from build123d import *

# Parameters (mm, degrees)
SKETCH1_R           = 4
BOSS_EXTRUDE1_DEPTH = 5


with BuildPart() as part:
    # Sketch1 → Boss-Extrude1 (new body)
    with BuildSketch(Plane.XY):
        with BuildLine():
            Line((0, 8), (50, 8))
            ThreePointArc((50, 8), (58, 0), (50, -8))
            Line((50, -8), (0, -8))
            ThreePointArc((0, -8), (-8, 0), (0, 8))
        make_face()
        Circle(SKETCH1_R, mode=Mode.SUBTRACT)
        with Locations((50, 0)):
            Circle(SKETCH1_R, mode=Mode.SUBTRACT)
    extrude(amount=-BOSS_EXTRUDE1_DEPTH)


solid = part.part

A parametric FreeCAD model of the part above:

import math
import FreeCAD as App
import Part
import Sketcher

doc = App.newDocument("Part")
body = doc.addObject("PartDesign::Body", "Body")

# Sketch on XY plane
sketch1 = doc.addObject("Sketcher::SketchObject", "Sketch")
body.addObject(sketch1)
sketch1.AttachmentSupport = (doc.XY_Plane, [""])
sketch1.MapMode = "FlatFace"
sketch1.addGeometry(Part.LineSegment(App.Vector(50, 8, 0), App.Vector(0, 8, 0)), False)
sketch1.addGeometry(Part.ArcOfCircle(Part.Circle(App.Vector(0, 0, 0), App.Vector(0, 0, 1), 8), math.radians(90), math.radians(270)), False)
sketch1.addGeometry(Part.LineSegment(App.Vector(0, -8, 0), App.Vector(50, -8, 0)), False)
sketch1.addGeometry(Part.ArcOfCircle(Part.Circle(App.Vector(50, 0, 0), App.Vector(0, 0, 1), 8), math.radians(-90), math.radians(90)), False)
sketch1.addGeometry(Part.Circle(App.Vector(50, 0, 0), App.Vector(0, 0, 1), 4), False)
sketch1.addGeometry(Part.Circle(App.Vector(0, 0, 0), App.Vector(0, 0, 1), 4), False)
sketch1.addConstraint(Sketcher.Constraint("Tangent", 0, 2, 1, 1))
sketch1.addConstraint(Sketcher.Constraint("Tangent", 1, 2, 2, 1))
sketch1.addConstraint(Sketcher.Constraint("Tangent", 2, 2, 3, 1))
sketch1.addConstraint(Sketcher.Constraint("Tangent", 3, 2, 0, 1))
sketch1.addConstraint(Sketcher.Constraint("Horizontal", 0))
sketch1.addConstraint(Sketcher.Constraint("Horizontal", 2))
sketch1.addConstraint(Sketcher.Constraint("Coincident", 1, 3, -1, 1))
sketch1.addConstraint(Sketcher.Constraint("Coincident", 5, 3, -1, 1))
sketch1.addConstraint(Sketcher.Constraint("Coincident", 4, 3, 3, 3))
sketch1.addConstraint(Sketcher.Constraint("Equal", 4, 5))
sketch1.addConstraint(Sketcher.Constraint("Diameter", 4, 8.0))
sketch1.addConstraint(Sketcher.Constraint("Radius", 1, 8.0))
sketch1.addConstraint(Sketcher.Constraint("DistanceX", 0, 2, 0, 1, 50.0))
pad1 = doc.addObject("PartDesign::Pad", "Pad")
body.addObject(pad1)
pad1.Profile = sketch1
pad1.Length = 5
pad1.Reversed = True

doc.recompute()
